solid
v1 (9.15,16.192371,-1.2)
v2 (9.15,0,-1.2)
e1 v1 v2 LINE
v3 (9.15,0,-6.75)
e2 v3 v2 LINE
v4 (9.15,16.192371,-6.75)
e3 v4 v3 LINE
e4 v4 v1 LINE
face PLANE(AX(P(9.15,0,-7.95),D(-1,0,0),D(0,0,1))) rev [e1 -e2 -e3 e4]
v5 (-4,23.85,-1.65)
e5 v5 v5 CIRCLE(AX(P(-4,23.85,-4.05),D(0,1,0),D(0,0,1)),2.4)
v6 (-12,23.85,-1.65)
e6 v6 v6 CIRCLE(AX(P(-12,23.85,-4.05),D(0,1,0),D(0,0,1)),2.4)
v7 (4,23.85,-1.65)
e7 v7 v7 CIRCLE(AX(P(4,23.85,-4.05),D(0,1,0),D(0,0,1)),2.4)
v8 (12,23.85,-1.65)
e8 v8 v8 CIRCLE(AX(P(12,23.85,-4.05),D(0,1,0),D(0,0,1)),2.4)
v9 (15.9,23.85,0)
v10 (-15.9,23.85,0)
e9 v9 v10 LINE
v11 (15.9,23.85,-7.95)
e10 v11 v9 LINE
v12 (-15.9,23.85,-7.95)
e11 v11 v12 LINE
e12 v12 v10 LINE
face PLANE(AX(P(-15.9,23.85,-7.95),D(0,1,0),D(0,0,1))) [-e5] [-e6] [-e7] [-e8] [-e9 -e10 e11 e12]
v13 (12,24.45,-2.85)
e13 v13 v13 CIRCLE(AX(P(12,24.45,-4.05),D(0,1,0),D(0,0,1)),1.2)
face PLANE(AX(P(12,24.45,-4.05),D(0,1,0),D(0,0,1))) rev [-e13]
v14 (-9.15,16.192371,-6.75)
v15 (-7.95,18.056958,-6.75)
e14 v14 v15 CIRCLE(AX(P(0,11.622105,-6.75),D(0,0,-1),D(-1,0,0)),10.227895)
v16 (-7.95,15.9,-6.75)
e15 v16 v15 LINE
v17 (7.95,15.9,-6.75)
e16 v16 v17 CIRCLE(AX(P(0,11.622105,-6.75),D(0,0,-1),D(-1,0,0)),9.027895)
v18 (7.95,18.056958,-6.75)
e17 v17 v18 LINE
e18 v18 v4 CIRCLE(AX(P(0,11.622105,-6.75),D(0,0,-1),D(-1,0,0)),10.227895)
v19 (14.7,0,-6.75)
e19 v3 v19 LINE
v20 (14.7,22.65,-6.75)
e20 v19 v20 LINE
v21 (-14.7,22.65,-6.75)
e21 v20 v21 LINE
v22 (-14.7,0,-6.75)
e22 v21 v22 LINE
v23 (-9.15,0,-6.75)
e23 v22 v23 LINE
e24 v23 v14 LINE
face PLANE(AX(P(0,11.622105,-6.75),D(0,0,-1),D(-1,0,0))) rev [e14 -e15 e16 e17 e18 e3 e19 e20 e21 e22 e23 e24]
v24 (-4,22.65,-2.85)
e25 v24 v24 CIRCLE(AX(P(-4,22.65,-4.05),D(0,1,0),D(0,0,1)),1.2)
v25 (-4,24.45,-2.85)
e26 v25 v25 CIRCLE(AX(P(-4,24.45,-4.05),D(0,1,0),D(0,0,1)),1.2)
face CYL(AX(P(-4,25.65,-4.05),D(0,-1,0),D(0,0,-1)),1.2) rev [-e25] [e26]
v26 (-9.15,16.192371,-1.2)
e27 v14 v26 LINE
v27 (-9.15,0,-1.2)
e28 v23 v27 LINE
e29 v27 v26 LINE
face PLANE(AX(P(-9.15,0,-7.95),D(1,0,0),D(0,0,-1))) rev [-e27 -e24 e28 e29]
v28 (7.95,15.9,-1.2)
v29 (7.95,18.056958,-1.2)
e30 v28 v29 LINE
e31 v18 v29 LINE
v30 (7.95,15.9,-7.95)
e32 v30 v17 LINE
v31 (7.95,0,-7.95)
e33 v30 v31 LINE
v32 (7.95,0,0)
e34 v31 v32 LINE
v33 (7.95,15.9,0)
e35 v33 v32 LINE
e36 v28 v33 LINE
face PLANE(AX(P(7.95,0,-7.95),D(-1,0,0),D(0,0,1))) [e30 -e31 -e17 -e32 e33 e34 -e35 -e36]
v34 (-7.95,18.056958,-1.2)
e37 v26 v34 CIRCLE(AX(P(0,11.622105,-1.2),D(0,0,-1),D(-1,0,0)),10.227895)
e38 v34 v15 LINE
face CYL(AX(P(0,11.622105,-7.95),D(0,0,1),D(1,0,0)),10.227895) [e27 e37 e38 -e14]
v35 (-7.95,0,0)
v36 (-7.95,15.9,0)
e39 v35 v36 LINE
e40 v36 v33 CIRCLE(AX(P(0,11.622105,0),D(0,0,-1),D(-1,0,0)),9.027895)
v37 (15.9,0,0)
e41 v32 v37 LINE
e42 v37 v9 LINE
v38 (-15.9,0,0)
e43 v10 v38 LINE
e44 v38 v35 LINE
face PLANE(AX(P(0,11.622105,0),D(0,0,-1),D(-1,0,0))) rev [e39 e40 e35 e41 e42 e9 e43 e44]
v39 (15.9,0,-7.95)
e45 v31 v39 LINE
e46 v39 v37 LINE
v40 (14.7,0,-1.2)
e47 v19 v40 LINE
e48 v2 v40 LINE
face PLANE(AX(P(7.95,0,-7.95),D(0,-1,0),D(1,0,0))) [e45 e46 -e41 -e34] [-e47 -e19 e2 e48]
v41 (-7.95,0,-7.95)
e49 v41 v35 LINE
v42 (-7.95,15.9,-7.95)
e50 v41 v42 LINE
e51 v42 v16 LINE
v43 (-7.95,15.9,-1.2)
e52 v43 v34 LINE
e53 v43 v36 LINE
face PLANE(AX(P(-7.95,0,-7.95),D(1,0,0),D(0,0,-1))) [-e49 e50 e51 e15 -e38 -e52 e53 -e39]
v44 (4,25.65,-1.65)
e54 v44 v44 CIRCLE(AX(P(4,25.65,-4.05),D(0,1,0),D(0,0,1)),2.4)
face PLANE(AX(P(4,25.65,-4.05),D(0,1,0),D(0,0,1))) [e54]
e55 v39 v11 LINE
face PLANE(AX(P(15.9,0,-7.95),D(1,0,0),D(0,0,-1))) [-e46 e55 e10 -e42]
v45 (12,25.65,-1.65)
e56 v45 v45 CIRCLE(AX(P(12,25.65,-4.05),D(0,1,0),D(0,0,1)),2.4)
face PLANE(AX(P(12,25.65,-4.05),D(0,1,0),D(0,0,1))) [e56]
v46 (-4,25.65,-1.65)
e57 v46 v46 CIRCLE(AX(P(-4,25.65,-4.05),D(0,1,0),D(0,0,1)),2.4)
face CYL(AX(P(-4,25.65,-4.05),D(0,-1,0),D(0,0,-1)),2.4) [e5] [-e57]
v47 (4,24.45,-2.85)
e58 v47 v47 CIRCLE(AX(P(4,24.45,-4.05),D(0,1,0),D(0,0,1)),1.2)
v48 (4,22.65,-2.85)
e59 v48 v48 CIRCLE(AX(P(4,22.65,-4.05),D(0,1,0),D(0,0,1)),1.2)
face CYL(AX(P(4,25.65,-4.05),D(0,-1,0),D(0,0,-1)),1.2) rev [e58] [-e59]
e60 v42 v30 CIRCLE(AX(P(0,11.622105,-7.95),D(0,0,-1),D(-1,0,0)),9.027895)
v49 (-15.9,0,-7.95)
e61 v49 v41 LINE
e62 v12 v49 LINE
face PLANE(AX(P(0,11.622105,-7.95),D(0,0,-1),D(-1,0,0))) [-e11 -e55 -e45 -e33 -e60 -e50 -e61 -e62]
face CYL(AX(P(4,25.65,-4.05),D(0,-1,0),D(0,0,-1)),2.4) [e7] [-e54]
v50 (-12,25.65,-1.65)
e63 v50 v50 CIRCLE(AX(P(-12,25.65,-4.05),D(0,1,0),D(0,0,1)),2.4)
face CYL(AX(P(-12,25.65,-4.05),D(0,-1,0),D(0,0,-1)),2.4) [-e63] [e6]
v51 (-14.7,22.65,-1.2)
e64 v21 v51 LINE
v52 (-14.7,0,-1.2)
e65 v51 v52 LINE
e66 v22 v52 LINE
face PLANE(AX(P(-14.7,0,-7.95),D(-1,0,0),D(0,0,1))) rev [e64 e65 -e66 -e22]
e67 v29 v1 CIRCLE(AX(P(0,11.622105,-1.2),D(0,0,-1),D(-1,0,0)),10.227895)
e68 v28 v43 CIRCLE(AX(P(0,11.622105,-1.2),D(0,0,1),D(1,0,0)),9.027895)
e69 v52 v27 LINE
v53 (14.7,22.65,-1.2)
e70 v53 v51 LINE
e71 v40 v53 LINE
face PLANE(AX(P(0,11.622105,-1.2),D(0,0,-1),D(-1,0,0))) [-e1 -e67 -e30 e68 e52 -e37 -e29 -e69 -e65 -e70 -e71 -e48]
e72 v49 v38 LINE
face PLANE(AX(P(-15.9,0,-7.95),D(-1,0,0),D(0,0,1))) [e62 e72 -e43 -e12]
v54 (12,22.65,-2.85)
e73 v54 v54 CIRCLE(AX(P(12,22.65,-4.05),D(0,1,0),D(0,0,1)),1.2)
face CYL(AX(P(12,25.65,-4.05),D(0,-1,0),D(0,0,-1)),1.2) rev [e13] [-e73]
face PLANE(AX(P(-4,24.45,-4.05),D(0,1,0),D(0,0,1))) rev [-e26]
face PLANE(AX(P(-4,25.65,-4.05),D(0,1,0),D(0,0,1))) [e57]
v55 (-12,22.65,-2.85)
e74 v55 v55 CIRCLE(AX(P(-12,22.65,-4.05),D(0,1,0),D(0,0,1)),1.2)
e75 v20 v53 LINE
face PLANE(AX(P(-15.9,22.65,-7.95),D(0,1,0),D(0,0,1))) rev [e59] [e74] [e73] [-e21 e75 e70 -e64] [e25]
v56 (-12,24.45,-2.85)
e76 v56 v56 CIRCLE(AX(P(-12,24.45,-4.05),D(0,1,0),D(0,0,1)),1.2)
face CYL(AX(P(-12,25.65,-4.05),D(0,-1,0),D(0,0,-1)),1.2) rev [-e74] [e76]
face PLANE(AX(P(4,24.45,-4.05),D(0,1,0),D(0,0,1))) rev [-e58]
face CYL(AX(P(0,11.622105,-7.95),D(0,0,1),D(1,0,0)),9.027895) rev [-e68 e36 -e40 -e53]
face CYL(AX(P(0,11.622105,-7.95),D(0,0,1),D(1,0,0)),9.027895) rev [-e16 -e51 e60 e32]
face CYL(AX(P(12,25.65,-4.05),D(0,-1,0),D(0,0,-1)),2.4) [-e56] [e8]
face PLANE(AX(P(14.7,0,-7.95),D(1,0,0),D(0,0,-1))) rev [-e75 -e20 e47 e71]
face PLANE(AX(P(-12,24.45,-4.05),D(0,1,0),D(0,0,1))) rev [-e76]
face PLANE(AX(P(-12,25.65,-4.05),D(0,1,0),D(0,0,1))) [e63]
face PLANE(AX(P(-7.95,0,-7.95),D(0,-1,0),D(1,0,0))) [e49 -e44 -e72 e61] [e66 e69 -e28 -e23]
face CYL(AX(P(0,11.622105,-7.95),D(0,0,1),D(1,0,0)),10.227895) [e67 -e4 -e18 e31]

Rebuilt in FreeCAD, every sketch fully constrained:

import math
import FreeCAD as App
import Part
import Sketcher

V = App.Vector


def faces_at(feature, points):
    """Names of the faces that lie closest to the given points."""
    faces = feature.Shape.Faces
    near = lambda p: min(range(len(faces)), key=lambda i: faces[i].distToShape(Part.Vertex(*p))[0])
    return sorted({f"Face{near(p) + 1}" for p in points})

doc = App.newDocument("Part")
body = doc.addObject("PartDesign::Body", "Body")

sketch1 = body.newObject("Sketcher::SketchObject", "Sketch")
sketch1.AttachmentSupport = (doc.getObject("XY_Plane"), [""])
sketch1.MapMode = "FlatFace"
sketch1.addGeometry([
    Part.LineSegment(V(-16, 0, 0), V(-8, 0, 0)),
    Part.LineSegment(V(-8, 0, 0), V(-8, 16, 0)),
    Part.ArcOfCircle(Part.Circle(V(0, 12, 0), V(0, 0, 1), 9), math.radians(28), math.radians(152)),
    Part.LineSegment(V(8, 16, 0), V(8, 0, 0)),
    Part.LineSegment(V(8, 0, 0), V(16, 0, 0)),
    Part.LineSegment(V(16, 0, 0), V(16, 24, 0)),
    Part.LineSegment(V(16, 24, 0), V(-16, 24, 0)),
    Part.LineSegment(V(-16, 24, 0), V(-16, 0, 0)),
], False)
sketch1.addConstraint([
    Sketcher.Constraint("Coincident", 0, 2, 1, 1),
    Sketcher.Constraint("Coincident", 1, 2, 2, 2),
    Sketcher.Constraint("Coincident", 2, 1, 3, 1),
    Sketcher.Constraint("Coincident", 3, 2, 4, 1),
    Sketcher.Constraint("Coincident", 4, 2, 5, 1),
    Sketcher.Constraint("Coincident", 5, 2, 6, 1),
    Sketcher.Constraint("Coincident", 6, 2, 7, 1),
    Sketcher.Constraint("Coincident", 7, 2, 0, 1),
    Sketcher.Constraint("Horizontal", 0),
    Sketcher.Constraint("Vertical", 1),
    Sketcher.Constraint("Vertical", 3),
    Sketcher.Constraint("Horizontal", 4),
    Sketcher.Constraint("Vertical", 5),
    Sketcher.Constraint("Horizontal", 6),
    Sketcher.Constraint("Vertical", 7),
    Sketcher.Constraint("Symmetric", 0, 2, 3, 2, -1, 1),
    Sketcher.Constraint("Symmetric", 4, 2, 7, 2, -2),
    Sketcher.Constraint("PointOnObject", 2, 3, -2),
    Sketcher.Constraint("DistanceX", 6, 2, 6, 1, 31.8),
    Sketcher.Constraint("DistanceY", 1, 1, 1, 2, 15.9),
    Sketcher.Constraint("DistanceX", 0, 1, 0, 2, 7.95),
    Sketcher.Constraint("DistanceY", 5, 1, 5, 2, 23.85),
    Sketcher.Constraint("Radius", 2, 9.027895),
])
pad1 = body.newObject("PartDesign::Pad", "Pad")
pad1.Profile = sketch1
pad1.Length = 7.95
pad1.Reversed = True

sketch2 = body.newObject("Sketcher::SketchObject", "Sketch001")
sketch2.AttachmentSupport = (doc.getObject("XZ_Plane"), [""])
sketch2.MapMode = "FlatFace"
sketch2.AttachmentOffset = App.Placement(V(0, 0, -23.85), App.Rotation())
sketch2.addGeometry(Part.Circle(V(-12, -4, 0), V(0, 0, 1), 2.4), False)
sketch2.addConstraint([
    Sketcher.Constraint("Diameter", 0, 4.8),
    Sketcher.Constraint("DistanceX", 0, 3, -1, 1, 12.0),
    Sketcher.Constraint("DistanceY", 0, 3, -1, 1, 4.05),
])
pad2 = body.newObject("PartDesign::Pad", "Pad001")
pad2.Profile = sketch2
pad2.Length = 1.8
pad2.Reversed = True
doc.recompute()

linearpattern = body.newObject("PartDesign::LinearPattern", "LinearPattern")
linearpattern.Originals = [pad2]
linearpattern.Direction = (doc.getObject("X_Axis"), [""])
linearpattern.Mode = "offset"
linearpattern.Offset = 8
linearpattern.Occurrences = 4
body.Tip = linearpattern
doc.recompute()

thickness = body.newObject("PartDesign::Thickness", "Thickness")
thickness.Base = (linearpattern, faces_at(linearpattern, [(-11.925, 0, -3.975), (11.925, 0, -3.975)]))
thickness.Value = 1.2
thickness.Reversed = True
thickness.Join = "Intersection"

sketch3 = body.newObject("Sketcher::SketchObject", "Sketch002")
sketch3.AttachmentSupport = (doc.getObject("XZ_Plane"), [""])
sketch3.MapMode = "FlatFace"
sketch3.AttachmentOffset = App.Placement(V(0, 0, -22.65), App.Rotation())
sketch3.addGeometry([
    Part.LineSegment(V(-8, -7, 0), V(-8, -1, 0)),
    Part.LineSegment(V(-8, -1, 0), V(8, -1, 0)),
    Part.LineSegment(V(8, -1, 0), V(8, -7, 0)),
    Part.LineSegment(V(8, -7, 0), V(-8, -7, 0)),
], False)
sketch3.addConstraint([
    Sketcher.Constraint("Coincident", 0, 2, 1, 1),
    Sketcher.Constraint("Coincident", 1, 2, 2, 1),
    Sketcher.Constraint("Coincident", 2, 2, 3, 1),
    Sketcher.Constraint("Coincident", 3, 2, 0, 1),
    Sketcher.Constraint("Vertical", 0),
    Sketcher.Constraint("Horizontal", 1),
    Sketcher.Constraint("Vertical", 2),
    Sketcher.Constraint("Horizontal", 3),
    Sketcher.Constraint("DistanceX", 1, 1, 1, 2, 15.9),
    Sketcher.Constraint("DistanceY", 0, 1, 0, 2, 5.55),
    Sketcher.Constraint("DistanceY", 0, 2, -1, 1, 1.2),
    Sketcher.Constraint("DistanceX", 0, 2, -1, 1, 7.95),
])
pocket1 = body.newObject("PartDesign::Pocket", "Pocket")
pocket1.Profile = sketch3
pocket1.Type = "ThroughAll"
pocket1.Reversed = True

doc.recompute()
